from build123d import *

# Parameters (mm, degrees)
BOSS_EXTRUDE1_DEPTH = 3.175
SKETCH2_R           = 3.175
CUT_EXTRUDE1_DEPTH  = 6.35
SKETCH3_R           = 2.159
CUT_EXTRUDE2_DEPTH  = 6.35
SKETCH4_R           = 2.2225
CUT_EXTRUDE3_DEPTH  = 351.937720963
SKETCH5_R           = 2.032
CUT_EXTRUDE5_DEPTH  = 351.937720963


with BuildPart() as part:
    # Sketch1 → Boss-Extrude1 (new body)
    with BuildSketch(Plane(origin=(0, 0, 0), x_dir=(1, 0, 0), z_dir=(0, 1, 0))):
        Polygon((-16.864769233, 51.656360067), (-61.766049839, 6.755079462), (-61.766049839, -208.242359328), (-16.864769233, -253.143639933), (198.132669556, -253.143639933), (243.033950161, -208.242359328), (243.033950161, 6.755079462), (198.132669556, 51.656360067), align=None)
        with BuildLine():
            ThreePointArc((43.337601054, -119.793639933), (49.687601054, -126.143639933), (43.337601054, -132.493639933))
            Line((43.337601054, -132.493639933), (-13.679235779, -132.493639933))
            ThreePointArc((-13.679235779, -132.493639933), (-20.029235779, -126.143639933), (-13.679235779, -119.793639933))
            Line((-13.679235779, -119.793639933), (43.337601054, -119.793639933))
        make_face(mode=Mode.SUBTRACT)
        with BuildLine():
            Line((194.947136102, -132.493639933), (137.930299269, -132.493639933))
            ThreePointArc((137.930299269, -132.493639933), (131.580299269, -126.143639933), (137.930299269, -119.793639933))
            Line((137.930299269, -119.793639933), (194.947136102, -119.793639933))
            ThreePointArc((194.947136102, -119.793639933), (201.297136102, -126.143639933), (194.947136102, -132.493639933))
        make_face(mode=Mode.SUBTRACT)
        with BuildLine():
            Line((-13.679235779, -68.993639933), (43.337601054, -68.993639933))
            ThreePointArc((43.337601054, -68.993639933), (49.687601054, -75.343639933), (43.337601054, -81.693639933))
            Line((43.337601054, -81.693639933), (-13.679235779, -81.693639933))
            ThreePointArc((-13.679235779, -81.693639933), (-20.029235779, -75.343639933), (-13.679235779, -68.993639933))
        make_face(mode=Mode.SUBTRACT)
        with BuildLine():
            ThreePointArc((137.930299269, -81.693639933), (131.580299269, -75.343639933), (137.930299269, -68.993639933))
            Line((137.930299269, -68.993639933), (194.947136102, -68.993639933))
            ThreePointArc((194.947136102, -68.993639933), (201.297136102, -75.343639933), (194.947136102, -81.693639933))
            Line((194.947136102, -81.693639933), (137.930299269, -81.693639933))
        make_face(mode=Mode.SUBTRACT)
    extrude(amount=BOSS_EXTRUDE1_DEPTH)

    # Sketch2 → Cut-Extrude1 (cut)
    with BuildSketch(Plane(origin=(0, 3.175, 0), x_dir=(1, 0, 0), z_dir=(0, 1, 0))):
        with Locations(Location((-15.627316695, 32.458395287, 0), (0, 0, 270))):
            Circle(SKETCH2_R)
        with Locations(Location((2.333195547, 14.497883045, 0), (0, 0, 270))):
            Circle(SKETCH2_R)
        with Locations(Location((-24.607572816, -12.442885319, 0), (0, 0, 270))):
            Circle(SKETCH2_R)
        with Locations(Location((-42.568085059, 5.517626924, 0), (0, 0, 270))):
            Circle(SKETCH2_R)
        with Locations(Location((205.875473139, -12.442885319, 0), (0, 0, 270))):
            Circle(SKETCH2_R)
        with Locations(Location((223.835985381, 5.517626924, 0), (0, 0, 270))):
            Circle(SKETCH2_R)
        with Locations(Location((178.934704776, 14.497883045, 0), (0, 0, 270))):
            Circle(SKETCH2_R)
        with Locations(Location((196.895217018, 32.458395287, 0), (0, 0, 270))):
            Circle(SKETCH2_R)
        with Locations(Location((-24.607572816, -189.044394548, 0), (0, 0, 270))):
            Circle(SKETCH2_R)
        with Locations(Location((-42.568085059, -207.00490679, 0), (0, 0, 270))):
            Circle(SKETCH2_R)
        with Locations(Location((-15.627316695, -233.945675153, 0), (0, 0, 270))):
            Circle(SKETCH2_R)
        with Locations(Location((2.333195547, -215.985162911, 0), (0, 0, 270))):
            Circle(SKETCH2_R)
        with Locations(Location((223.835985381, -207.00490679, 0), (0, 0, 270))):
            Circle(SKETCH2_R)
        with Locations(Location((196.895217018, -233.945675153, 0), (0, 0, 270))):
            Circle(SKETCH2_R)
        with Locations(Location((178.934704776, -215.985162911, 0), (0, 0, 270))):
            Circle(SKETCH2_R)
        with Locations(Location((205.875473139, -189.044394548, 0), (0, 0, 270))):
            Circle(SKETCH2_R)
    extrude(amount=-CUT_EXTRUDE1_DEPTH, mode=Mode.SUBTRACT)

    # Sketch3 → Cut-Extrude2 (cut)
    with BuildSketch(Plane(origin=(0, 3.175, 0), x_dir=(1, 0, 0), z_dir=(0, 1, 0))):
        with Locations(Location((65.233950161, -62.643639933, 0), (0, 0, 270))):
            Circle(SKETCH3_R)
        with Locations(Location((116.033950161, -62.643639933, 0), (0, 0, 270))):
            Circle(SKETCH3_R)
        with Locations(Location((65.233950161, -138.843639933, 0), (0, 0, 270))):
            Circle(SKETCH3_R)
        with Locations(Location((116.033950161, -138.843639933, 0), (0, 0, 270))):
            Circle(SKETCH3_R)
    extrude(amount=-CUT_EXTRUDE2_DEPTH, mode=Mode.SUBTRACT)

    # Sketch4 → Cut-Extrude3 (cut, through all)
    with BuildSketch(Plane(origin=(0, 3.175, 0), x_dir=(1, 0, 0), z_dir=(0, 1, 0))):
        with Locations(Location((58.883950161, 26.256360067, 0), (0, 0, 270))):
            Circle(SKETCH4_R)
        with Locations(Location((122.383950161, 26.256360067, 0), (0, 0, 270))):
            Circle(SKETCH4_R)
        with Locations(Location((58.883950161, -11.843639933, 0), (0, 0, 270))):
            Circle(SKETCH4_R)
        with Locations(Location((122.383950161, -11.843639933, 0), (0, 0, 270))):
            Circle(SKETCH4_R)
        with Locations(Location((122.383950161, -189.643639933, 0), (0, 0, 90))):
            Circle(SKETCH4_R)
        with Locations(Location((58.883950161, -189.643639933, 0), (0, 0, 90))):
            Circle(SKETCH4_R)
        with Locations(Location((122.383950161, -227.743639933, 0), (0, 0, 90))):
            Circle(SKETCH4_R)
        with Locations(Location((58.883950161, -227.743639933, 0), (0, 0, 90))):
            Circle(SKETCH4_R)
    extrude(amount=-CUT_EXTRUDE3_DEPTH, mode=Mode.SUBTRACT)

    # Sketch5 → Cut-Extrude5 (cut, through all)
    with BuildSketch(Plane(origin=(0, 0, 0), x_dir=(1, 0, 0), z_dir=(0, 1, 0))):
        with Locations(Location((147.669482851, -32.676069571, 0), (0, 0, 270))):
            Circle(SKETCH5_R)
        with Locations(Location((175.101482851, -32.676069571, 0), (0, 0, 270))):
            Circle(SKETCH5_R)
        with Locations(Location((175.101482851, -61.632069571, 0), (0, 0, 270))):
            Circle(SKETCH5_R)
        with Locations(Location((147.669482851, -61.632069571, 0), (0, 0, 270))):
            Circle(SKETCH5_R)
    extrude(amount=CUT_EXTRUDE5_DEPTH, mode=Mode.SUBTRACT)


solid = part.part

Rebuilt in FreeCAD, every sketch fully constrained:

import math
import FreeCAD as App
import Part
import Sketcher

V = App.Vector
Q = App.Units.Quantity

doc = App.newDocument("Part")
params = doc.addObject("Spreadsheet::Sheet", "Params")
for row, (alias, value) in enumerate([
    ("sketch1_radius", "0.25 in"),
    ("sketch1_length", "2.5 in"),
    ("pad1_length", "0.125 in"),
    ("sketch2_diameter", "0.25 in"),
    ("pocket1_length", "0.25 in"),
    ("sketch3_diameter", "0.17 in"),
    ("pocket2_length", "0.25 in"),
    ("sketch4_diameter", "0.175 in"),
    ("sketch5_diameter", "0.16 in"),
], start=1):
    params.set(f"A{row}", alias)
    params.set(f"B{row}", "=" + value)
    params.setAlias(f"B{row}", alias)

body = doc.addObject("PartDesign::Body", "Body")

# Sketch on XZ plane
sketch1 = body.newObject("Sketcher::SketchObject", "Sketch")
sketch1.AttachmentSupport = (doc.getObject("XZ_Plane"), [""])
sketch1.MapMode = "FlatFace"
sketch1.addGeometry(Part.LineSegment(V(-17, -52, 0), V(-62, -7, 0)), False)
sketch1.addGeometry(Part.LineSegment(V(-62, -7, 0), V(-62, 208, 0)), False)
sketch1.addGeometry(Part.LineSegment(V(-62, 208, 0), V(-17, 253, 0)), False)
sketch1.addGeometry(Part.LineSegment(V(-17, 253, 0), V(198, 253, 0)), False)
sketch1.addGeometry(Part.LineSegment(V(198, 253, 0), V(243, 208, 0)), False)
sketch1.addGeometry(Part.LineSegment(V(243, 208, 0), V(243, -7, 0)), False)
sketch1.addGeometry(Part.LineSegment(V(243, -7, 0), V(198, -52, 0)), False)
sketch1.addGeometry(Part.LineSegment(V(198, -52, 0), V(-17, -52, 0)), False)
sketch1.addGeometry(Part.LineSegment(V(-14, 120, 0), V(43, 120, 0)), False)
sketch1.addGeometry(Part.ArcOfCircle(Part.Circle(V(43, 126, 0), V(0, 0, 1), 6), math.radians(-90), math.radians(90)), False)
sketch1.addGeometry(Part.LineSegment(V(43, 132, 0), V(-14, 132, 0)), False)
sketch1.addGeometry(Part.ArcOfCircle(Part.Circle(V(-14, 126, 0), V(0, 0, 1), 6), math.radians(90), math.radians(270)), False)
sketch1.addGeometry(Part.ArcOfCircle(Part.Circle(V(195, 126, 0), V(0, 0, 1), 6), math.radians(-90), math.radians(90)), False)
sketch1.addGeometry(Part.LineSegment(V(195, 132, 0), V(138, 132, 0)), False)
sketch1.addGeometry(Part.ArcOfCircle(Part.Circle(V(138, 126, 0), V(0, 0, 1), 6), math.radians(90), math.radians(270)), False)
sketch1.addGeometry(Part.LineSegment(V(138, 120, 0), V(195, 120, 0)), False)
sketch1.addGeometry(Part.ArcOfCircle(Part.Circle(V(-14, 75, 0), V(0, 0, 1), 6), math.radians(90), math.radians(270)), False)
sketch1.addGeometry(Part.LineSegment(V(-14, 69, 0), V(43, 69, 0)), False)
sketch1.addGeometry(Part.ArcOfCircle(Part.Circle(V(43, 75, 0), V(0, 0, 1), 6), math.radians(-90), math.radians(90)), False)
sketch1.addGeometry(Part.LineSegment(V(43, 82, 0), V(-14, 82, 0)), False)
sketch1.addGeometry(Part.LineSegment(V(195, 82, 0), V(138, 82, 0)), False)
sketch1.addGeometry(Part.ArcOfCircle(Part.Circle(V(138, 75, 0), V(0, 0, 1), 6), math.radians(90), math.radians(270)), False)
sketch1.addGeometry(Part.LineSegment(V(138, 69, 0), V(195, 69, 0)), False)
sketch1.addGeometry(Part.ArcOfCircle(Part.Circle(V(195, 75, 0), V(0, 0, 1), 6), math.radians(-90), math.radians(90)), False)
sketch1.addConstraint(Sketcher.Constraint("Coincident", 0, 2, 1, 1))
sketch1.addConstraint(Sketcher.Constraint("Coincident", 1, 2, 2, 1))
sketch1.addConstraint(Sketcher.Constraint("Coincident", 2, 2, 3, 1))
sketch1.addConstraint(Sketcher.Constraint("Coincident", 3, 2, 4, 1))
sketch1.addConstraint(Sketcher.Constraint("Coincident", 4, 2, 5, 1))
sketch1.addConstraint(Sketcher.Constraint("Coincident", 5, 2, 6, 1))
sketch1.addConstraint(Sketcher.Constraint("Coincident", 6, 2, 7, 1))
sketch1.addConstraint(Sketcher.Constraint("Coincident", 7, 2, 0, 1))
sketch1.addConstraint(Sketcher.Constraint("Tangent", 8, 2, 9, 1))
sketch1.addConstraint(Sketcher.Constraint("Tangent", 9, 2, 10, 1))
sketch1.addConstraint(Sketcher.Constraint("Tangent", 10, 2, 11, 1))
sketch1.addConstraint(Sketcher.Constraint("Tangent", 11, 2, 8, 1))
sketch1.addConstraint(Sketcher.Constraint("Tangent", 12, 2, 13, 1))
sketch1.addConstraint(Sketcher.Constraint("Tangent", 13, 2, 14, 1))
sketch1.addConstraint(Sketcher.Constraint("Tangent", 14, 2, 15, 1))
sketch1.addConstraint(Sketcher.Constraint("Tangent", 15, 2, 12, 1))
sketch1.addConstraint(Sketcher.Constraint("Tangent", 16, 2, 17, 1))
sketch1.addConstraint(Sketcher.Constraint("Tangent", 17, 2, 18, 1))
sketch1.addConstraint(Sketcher.Constraint("Tangent", 18, 2, 19, 1))
sketch1.addConstraint(Sketcher.Constraint("Tangent", 19, 2, 16, 1))
sketch1.addConstraint(Sketcher.Constraint("Tangent", 20, 2, 21, 1))
sketch1.addConstraint(Sketcher.Constraint("Tangent", 21, 2, 22, 1))
sketch1.addConstraint(Sketcher.Constraint("Tangent", 22, 2, 23, 1))
sketch1.addConstraint(Sketcher.Constraint("Tangent", 23, 2, 20, 1))
sketch1.addConstraint(Sketcher.Constraint("Vertical", 1))
sketch1.addConstraint(Sketcher.Constraint("Horizontal", 3))
sketch1.addConstraint(Sketcher.Constraint("Vertical", 5))
sketch1.addConstraint(Sketcher.Constraint("Horizontal", 7))
sketch1.addConstraint(Sketcher.Constraint("Horizontal", 8))
sketch1.addConstraint(Sketcher.Constraint("Horizontal", 10))
sketch1.addConstraint(Sketcher.Constraint("Horizontal", 13))
sketch1.addConstraint(Sketcher.Constraint("Horizontal", 15))
sketch1.addConstraint(Sketcher.Constraint("Horizontal", 17))
sketch1.addConstraint(Sketcher.Constraint("Horizontal", 19))
sketch1.addConstraint(Sketcher.Constraint("Horizontal", 20))
sketch1.addConstraint(Sketcher.Constraint("Horizontal", 22))
sketch1.addConstraint(Sketcher.Constraint("Equal", 11, 12))
sketch1.addConstraint(Sketcher.Constraint("Equal", 14, 16))
sketch1.addConstraint(Sketcher.Constraint("Equal", 18, 21))
sketch1.addConstraint(Sketcher.Constraint("Perpendicular", 0, 2))
sketch1.addConstraint(Sketcher.Constraint("Perpendicular", 2, 4))
sketch1.addConstraint(Sketcher.Constraint("Perpendicular", 4, 6))
sketch1.addConstraint(Sketcher.Constraint("Horizontal", 11, 3, 12, 3))
sketch1.addConstraint(Sketcher.Constraint("Horizontal", 18, 3, 21, 3))
sketch1.addConstraint(Sketcher.Constraint("Horizontal", 1, 2, 4, 2))
sketch1.addConstraint(Sketcher.Constraint("Horizontal", 0, 2, 5, 2))
sketch1.addConstraint(Sketcher.Constraint("Vertical", 11, 3, 16, 3))
sketch1.addConstraint(Sketcher.Constraint("Vertical", 9, 3, 18, 3))
sketch1.addConstraint(Sketcher.Constraint("Vertical", 14, 3, 21, 3))
sketch1.addConstraint(Sketcher.Constraint("Vertical", 12, 3, 23, 3))
sketch1.addConstraint(Sketcher.Constraint("Vertical", 3, 2, 6, 2))
sketch1.addConstraint(Sketcher.Constraint("Vertical", 2, 2, 7, 2))
sketch1.addConstraint(Sketcher.Constraint("Equal", 10, 13))
sketch1.addConstraint(Sketcher.Constraint("Equal", 7, 1))
sketch1.addConstraint(Sketcher.Constraint("Radius", 9, Q("0.25 in")))
sketch1.addConstraint(Sketcher.Constraint("DistanceY", 16, 3, 11, 3, Q("2 in")))
sketch1.addConstraint(Sketcher.Constraint("DistanceY", 11, 3, 2, 2, Q("5 in")))
sketch1.addConstraint(Sketcher.Constraint("DistanceY", 6, 2, 23, 3, Q("5 in")))
sketch1.addConstraint(Sketcher.Constraint("Distance", 0, Q("2.5 in")))
sketch1.addConstraint(Sketcher.Constraint("DistanceX", -1, 1, 9, 3, 43.337601))
sketch1.addConstraint(Sketcher.Constraint("DistanceX", -1, 1, 14, 3, 137.930299))
sketch1.addConstraint(Sketcher.Constraint("DistanceX", 8, 1, 8, 2, 57.016837))
sketch1.addConstraint(Sketcher.Constraint("DistanceY", -1, 1, 9, 3, 126.14364))
sketch1.addConstraint(Sketcher.Constraint("DistanceX", 0, 2, -1, 1, 61.76605))
sketch1.setExpression("Constraints[54]", "Params.sketch1_radius")
sketch1.setExpression("Constraints[58]", "Params.sketch1_length")
pad1 = body.newObject("PartDesign::Pad", "Pad")
pad1.Profile = sketch1
pad1.setExpression("Length", "Params.pad1_length")
pad1.Reversed = True

# Sketch on XZ plane
sketch2 = body.newObject("Sketcher::SketchObject", "Sketch001")
sketch2.AttachmentSupport = (doc.getObject("XZ_Plane"), [""])
sketch2.MapMode = "FlatFace"
sketch2.AttachmentOffset = App.Placement(V(0, 0, -0.125 * 25.4), App.Rotation())
sketch2.addGeometry(Part.Circle(V(-15.6, -32.5, 0), V(0, 0, 1), 3.2), False)
sketch2.addGeometry(Part.Circle(V(2.3, -14.5, 0), V(0, 0, 1), 3.2), False)
sketch2.addGeometry(Part.Circle(V(-24.6, 12.4, 0), V(0, 0, 1), 3.2), False)
sketch2.addGeometry(Part.Circle(V(-42.6, -5.5, 0), V(0, 0, 1), 3.2), False)
sketch2.addGeometry(Part.Circle(V(205.9, 12.4, 0), V(0, 0, 1), 3.2), False)
sketch2.addGeometry(Part.Circle(V(223.8, -5.5, 0), V(0, 0, 1), 3.2), False)
sketch2.addGeometry(Part.Circle(V(178.9, -14.5, 0), V(0, 0, 1), 3.2), False)
sketch2.addGeometry(Part.Circle(V(196.9, -32.5, 0), V(0, 0, 1), 3.2), False)
sketch2.addGeometry(Part.Circle(V(-24.6, 189, 0), V(0, 0, 1), 3.2), False)
sketch2.addGeometry(Part.Circle(V(-42.6, 207, 0), V(0, 0, 1), 3.2), False)
sketch2.addGeometry(Part.Circle(V(-15.6, 233.9, 0), V(0, 0, 1), 3.2), False)
sketch2.addGeometry(Part.Circle(V(2.3, 216, 0), V(0, 0, 1), 3.2), False)
sketch2.addGeometry(Part.Circle(V(223.8, 207, 0), V(0, 0, 1), 3.2), False)
sketch2.addGeometry(Part.Circle(V(196.9, 233.9, 0), V(0, 0, 1), 3.2), False)
sketch2.addGeometry(Part.Circle(V(178.9, 216, 0), V(0, 0, 1), 3.2), False)
sketch2.addGeometry(Part.Circle(V(205.9, 189, 0), V(0, 0, 1), 3.2), False)
sketch2.addConstraint(Sketcher.Constraint("Equal", 0, 1))
sketch2.addConstraint(Sketcher.Constraint("Equal", 1, 2))
sketch2.addConstraint(Sketcher.Constraint("Equal", 2, 3))
sketch2.addConstraint(Sketcher.Constraint("Equal", 3, 4))
sketch2.addConstraint(Sketcher.Constraint("Equal", 4, 5))
sketch2.addConstraint(Sketcher.Constraint("Equal", 5, 6))
sketch2.addConstraint(Sketcher.Constraint("Equal", 6, 7))
sketch2.addConstraint(Sketcher.Constraint("Equal", 7, 8))
sketch2.addConstraint(Sketcher.Constraint("Equal", 8, 9))
sketch2.addConstraint(Sketcher.Constraint("Equal", 9, 10))
sketch2.addConstraint(Sketcher.Constraint("Equal", 10, 11))
sketch2.addConstraint(Sketcher.Constraint("Equal", 11, 12))
sketch2.addConstraint(Sketcher.Constraint("Equal", 12, 13))
sketch2.addConstraint(Sketcher.Constraint("Equal", 13, 14))
sketch2.addConstraint(Sketcher.Constraint("Equal", 14, 15))
sketch2.addConstraint(Sketcher.Constraint("Horizontal", 2, 3, 4, 3))
sketch2.addConstraint(Sketcher.Constraint("Horizontal", 3, 3, 5, 3))
sketch2.addConstraint(Sketcher.Constraint("Horizontal", 1, 3, 6, 3))
sketch2.addConstraint(Sketcher.Constraint("Horizontal", 0, 3, 7, 3))
sketch2.addConstraint(Sketcher.Constraint("Horizontal", 9, 3, 12, 3))
sketch2.addConstraint(Sketcher.Constraint("Horizontal", 10, 3, 13, 3))
sketch2.addConstraint(Sketcher.Constraint("Horizontal", 11, 3, 14, 3))
sketch2.addConstraint(Sketcher.Constraint("Horizontal", 8, 3, 15, 3))
sketch2.addConstraint(Sketcher.Constraint("Vertical", 2, 3, 8, 3))
sketch2.addConstraint(Sketcher.Constraint("Vertical", 3, 3, 9, 3))
sketch2.addConstraint(Sketcher.Constraint("Vertical", 0, 3, 10, 3))
sketch2.addConstraint(Sketcher.Constraint("Vertical", 1, 3, 11, 3))
sketch2.addConstraint(Sketcher.Constraint("Vertical", 5, 3, 12, 3))
sketch2.addConstraint(Sketcher.Constraint("Vertical", 7, 3, 13, 3))
sketch2.addConstraint(Sketcher.Constraint("Vertical", 6, 3, 14, 3))
sketch2.addConstraint(Sketcher.Constraint("Vertical", 4, 3, 15, 3))
sketch2.addConstraint(Sketcher.Constraint("Diameter", 0, Q("0.25 in")))
sketch2.addConstraint(Sketcher.Constraint("DistanceX", 2, 3, 1, 3, 26.940768))
sketch2.addConstraint(Sketcher.Constraint("DistanceY", 1, 3, 2, 3, 26.940768))
sketch2.addConstraint(Sketcher.Constraint("DistanceY", 0, 3, 2, 3, 44.901281))
sketch2.addConstraint(Sketcher.Constraint("DistanceX", 3, 3, 0, 3, 26.940768))
sketch2.addConstraint(Sketcher.Constraint("DistanceY", 0, 3, 3, 3, 26.940768))
sketch2.addConstraint(Sketcher.Constraint("DistanceX", 3, 3, 1, 3, 44.901281))
sketch2.addConstraint(Sketcher.Constraint("DistanceX", 0, 3, 4, 3, 221.50279))
sketch2.addConstraint(Sketcher.Constraint("DistanceX", 1, 3, 5, 3, 221.50279))
sketch2.addConstraint(Sketcher.Constraint("DistanceX", 6, 3, 4, 3, 26.940768))
sketch2.addConstraint(Sketcher.Constraint("DistanceX", 7, 3, 5, 3, 26.940768))
sketch2.addConstraint(Sketcher.Constraint("DistanceY", 2, 3, 8, 3, 176.601509))
sketch2.addConstraint(Sketcher.Constraint("DistanceY", 2, 3, 9, 3, 194.562021))
sketch2.addConstraint(Sketcher.Constraint("DistanceY", 9, 3, 10, 3, 26.940768))
sketch2.addConstraint(Sketcher.Constraint("DistanceY", 8, 3, 11, 3, 26.940768))
sketch2.addConstraint(Sketcher.Constraint("DistanceX", 0, 3, -1, 1, 15.627317))
sketch2.addConstraint(Sketcher.Constraint("DistanceY", 0, 3, -1, 1, 32.458395))
sketch2.setExpression("Constraints[31]", "Params.sketch2_diameter")
pocket1 = body.newObject("PartDesign::Pocket", "Pocket")
pocket1.Profile = sketch2
pocket1.setExpression("Length", "Params.pocket1_length")
pocket1.Reversed = True

# Sketch on XZ plane
sketch3 = body.newObject("Sketcher::SketchObject", "Sketch002")
sketch3.AttachmentSupport = (doc.getObject("XZ_Plane"), [""])
sketch3.MapMode = "FlatFace"
sketch3.AttachmentOffset = App.Placement(V(0, 0, -0.125 * 25.4), App.Rotation())
sketch3.addGeometry(Part.Circle(V(65.2, 62.6, 0), V(0, 0, 1), 2.2), False)
sketch3.addGeometry(Part.Circle(V(116, 62.6, 0), V(0, 0, 1), 2.2), False)
sketch3.addGeometry(Part.Circle(V(65.2, 138.8, 0), V(0, 0, 1), 2.2), False)
sketch3.addGeometry(Part.Circle(V(116, 138.8, 0), V(0, 0, 1), 2.2), False)
sketch3.addConstraint(Sketcher.Constraint("Equal", 0, 1))
sketch3.addConstraint(Sketcher.Constraint("Equal", 1, 2))
sketch3.addConstraint(Sketcher.Constraint("Equal", 2, 3))
sketch3.addConstraint(Sketcher.Constraint("Horizontal", 0, 3, 1, 3))
sketch3.addConstraint(Sketcher.Constraint("Horizontal", 2, 3, 3, 3))
sketch3.addConstraint(Sketcher.Constraint("Vertical", 0, 3, 2, 3))
sketch3.addConstraint(Sketcher.Constraint("Vertical", 1, 3, 3, 3))
sketch3.addConstraint(Sketcher.Constraint("Diameter", 0, Q("0.17 in")))
sketch3.addConstraint(Sketcher.Constraint("DistanceX", 0, 3, 1, 3, Q("2 in")))
sketch3.addConstraint(Sketcher.Constraint("DistanceY", 0, 3, 2, 3, Q("3 in")))
sketch3.addConstraint(Sketcher.Constraint("DistanceX", -1, 1, 0, 3, 65.23395))
sketch3.addConstraint(Sketcher.Constraint("DistanceY", -1, 1, 0, 3, 62.64364))
sketch3.setExpression("Constraints[7]", "Params.sketch3_diameter")
pocket2 = body.newObject("PartDesign::Pocket", "Pocket001")
pocket2.Profile = sketch3
pocket2.setExpression("Length", "Params.pocket2_length")
pocket2.Reversed = True

# Sketch on XZ plane
sketch4 = body.newObject("Sketcher::SketchObject", "Sketch003")
sketch4.AttachmentSupport = (doc.getObject("XZ_Plane"), [""])
sketch4.MapMode = "FlatFace"
sketch4.AttachmentOffset = App.Placement(V(0, 0, -0.125 * 25.4), App.Rotation())
sketch4.addGeometry(Part.Circle(V(58.9, -26.3, 0), V(0, 0, 1), 2.2), False)
sketch4.addGeometry(Part.Circle(V(122.4, -26.3, 0), V(0, 0, 1), 2.2), False)
sketch4.addGeometry(Part.Circle(V(58.9, 11.8, 0), V(0, 0, 1), 2.2), False)
sketch4.addGeometry(Part.Circle(V(122.4, 11.8, 0), V(0, 0, 1), 2.2), False)
sketch4.addGeometry(Part.Circle(V(122.4, 189.6, 0), V(0, 0, 1), 2.2), False)
sketch4.addGeometry(Part.Circle(V(58.9, 189.6, 0), V(0, 0, 1), 2.2), False)
sketch4.addGeometry(Part.Circle(V(122.4, 227.7, 0), V(0, 0, 1), 2.2), False)
sketch4.addGeometry(Part.Circle(V(58.9, 227.7, 0), V(0, 0, 1), 2.2), False)
sketch4.addConstraint(Sketcher.Constraint("Equal", 0, 1))
sketch4.addConstraint(Sketcher.Constraint("Equal", 1, 2))
sketch4.addConstraint(Sketcher.Constraint("Equal", 2, 3))
sketch4.addConstraint(Sketcher.Constraint("Equal", 3, 4))
sketch4.addConstraint(Sketcher.Constraint("Equal", 4, 5))
sketch4.addConstraint(Sketcher.Constraint("Equal", 5, 6))
sketch4.addConstraint(Sketcher.Constraint("Equal", 6, 7))
sketch4.addConstraint(Sketcher.Constraint("Horizontal", 0, 3, 1, 3))
sketch4.addConstraint(Sketcher.Constraint("Horizontal", 2, 3, 3, 3))
sketch4.addConstraint(Sketcher.Constraint("Horizontal", 4, 3, 5, 3))
sketch4.addConstraint(Sketcher.Constraint("Horizontal", 6, 3, 7, 3))
sketch4.addConstraint(Sketcher.Constraint("Vertical", 0, 3, 2, 3))
sketch4.addConstraint(Sketcher.Constraint("Vertical", 1, 3, 3, 3))
sketch4.addConstraint(Sketcher.Constraint("Vertical", 3, 3, 4, 3))
sketch4.addConstraint(Sketcher.Constraint("Vertical", 2, 3, 5, 3))
sketch4.addConstraint(Sketcher.Constraint("Vertical", 4, 3, 6, 3))
sketch4.addConstraint(Sketcher.Constraint("Vertical", 5, 3, 7, 3))
sketch4.addConstraint(Sketcher.Constraint("Diameter", 0, Q("0.175 in")))
sketch4.addConstraint(Sketcher.Constraint("DistanceY", 3, 3, 4, 3, Q("7 in")))
sketch4.addConstraint(Sketcher.Constraint("DistanceY", 1, 3, 6, 3, Q("10 in")))
sketch4.addConstraint(Sketcher.Constraint("DistanceX", 0, 3, 1, 3, Q("2.5 in")))
sketch4.addConstraint(Sketcher.Constraint("DistanceY", 0, 3, 2, 3, Q("1.5 in")))
sketch4.addConstraint(Sketcher.Constraint("DistanceX", -1, 1, 0, 3, 58.88395))
sketch4.addConstraint(Sketcher.Constraint("DistanceY", 0, 3, -1, 1, 26.25636))
sketch4.setExpression("Constraints[17]", "Params.sketch4_diameter")
pocket3 = body.newObject("PartDesign::Pocket", "Pocket002")
pocket3.Profile = sketch4
pocket3.Type = "ThroughAll"
pocket3.Reversed = True

# Sketch on XZ plane
sketch5 = body.newObject("Sketcher::SketchObject", "Sketch004")
sketch5.AttachmentSupport = (doc.getObject("XZ_Plane"), [""])
sketch5.MapMode = "FlatFace"
sketch5.addGeometry(Part.Circle(V(147.7, 32.7, 0), V(0, 0, 1), 2), False)
sketch5.addGeometry(Part.Circle(V(175.1, 32.7, 0), V(0, 0, 1), 2), False)
sketch5.addGeometry(Part.Circle(V(175.1, 61.6, 0), V(0, 0, 1), 2), False)
sketch5.addGeometry(Part.Circle(V(147.7, 61.6, 0), V(0, 0, 1), 2), False)
sketch5.addConstraint(Sketcher.Constraint("Equal", 0, 1))
sketch5.addConstraint(Sketcher.Constraint("Equal", 1, 2))
sketch5.addConstraint(Sketcher.Constraint("Equal", 2, 3))
sketch5.addConstraint(Sketcher.Constraint("Horizontal", 0, 3, 1, 3))
sketch5.addConstraint(Sketcher.Constraint("Horizontal", 2, 3, 3, 3))
sketch5.addConstraint(Sketcher.Constraint("Vertical", 1, 3, 2, 3))
sketch5.addConstraint(Sketcher.Constraint("Vertical", 0, 3, 3, 3))
sketch5.addConstraint(Sketcher.Constraint("Diameter", 0, Q("0.16 in")))
sketch5.addConstraint(Sketcher.Constraint("DistanceX", 0, 3, 1, 3, Q("1.08 in")))
sketch5.addConstraint(Sketcher.Constraint("DistanceY", 1, 3, 2, 3, Q("1.14 in")))
sketch5.addConstraint(Sketcher.Constraint("DistanceY", -1, 1, 0, 3, 32.67607))
sketch5.addConstraint(Sketcher.Constraint("DistanceX", -1, 1, 0, 3, 147.669483))
sketch5.setExpression("Constraints[7]", "Params.sketch5_diameter")
pocket4 = body.newObject("PartDesign::Pocket", "Pocket003")
pocket4.Profile = sketch5
pocket4.Type = "ThroughAll"

doc.recompute()
